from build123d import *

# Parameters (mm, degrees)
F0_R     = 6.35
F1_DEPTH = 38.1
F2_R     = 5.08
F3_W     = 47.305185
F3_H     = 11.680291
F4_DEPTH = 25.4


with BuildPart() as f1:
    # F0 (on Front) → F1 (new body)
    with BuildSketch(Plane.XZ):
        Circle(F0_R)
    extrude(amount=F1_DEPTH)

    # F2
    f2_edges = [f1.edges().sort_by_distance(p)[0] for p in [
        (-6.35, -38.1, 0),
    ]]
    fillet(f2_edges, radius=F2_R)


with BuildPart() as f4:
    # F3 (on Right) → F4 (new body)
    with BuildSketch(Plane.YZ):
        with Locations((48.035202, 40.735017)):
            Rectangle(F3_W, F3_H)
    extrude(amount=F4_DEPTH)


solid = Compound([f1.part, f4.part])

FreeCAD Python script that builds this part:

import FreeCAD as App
import Part
import Sketcher
from FreeCAD import Vector
Q = App.Units.Quantity


def edges_at(feature, points):
    """Names of the edges that pass closest to the given points."""
    edges = feature.Shape.Edges
    near = lambda p: min(range(len(edges)), key=lambda i: edges[i].distToShape(Part.Vertex(*p))[0])
    return sorted({f"Edge{near(p) + 1}" for p in points})

doc = App.newDocument("Part")
body = doc.addObject("PartDesign::Body", "Body")

sketch1 = body.newObject("Sketcher::SketchObject", "Sketch")
sketch1.AttachmentSupport = (doc.getObject("XZ_Plane"), [""])
sketch1.MapMode = "FlatFace"
sketch1.addGeometry(Part.Circle(Vector(0, 0, 0), Vector(0, 0, 1), 6), False)
sketch1.addConstraint([
    Sketcher.Constraint("Coincident", 0, 3, -1, 1),
    Sketcher.Constraint("Diameter", 0, Q("0.5 in")),
])
pad1 = body.newObject("PartDesign::Pad", "Pad")
pad1.Profile = sketch1
pad1.Length = Q("1.5 in")
doc.recompute()

fillet = body.newObject("PartDesign::Fillet", "Fillet")
fillet.Base = (pad1, edges_at(pad1, [(-6.35, -38.1, 0)]))
fillet.Radius = Q("0.2 in")
body2 = doc.addObject("PartDesign::Body", "Body001")

sketch2 = body2.newObject("Sketcher::SketchObject", "Sketch001")
sketch2.AttachmentSupport = (doc.getObject("YZ_Plane001"), [""])
sketch2.MapMode = "FlatFace"
sketch2.addGeometry([
    Part.LineSegment(Vector(24, 47, 0), Vector(24, 35, 0)),
    Part.LineSegment(Vector(24, 35, 0), Vector(72, 35, 0)),
    Part.LineSegment(Vector(72, 35, 0), Vector(72, 47, 0)),
    Part.LineSegment(Vector(72, 47, 0), Vector(24, 47, 0)),
], False)
sketch2.addConstraint([
    Sketcher.Constraint("Coincident", 0, 2, 1, 1),
    Sketcher.Constraint("Coincident", 1, 2, 2, 1),
    Sketcher.Constraint("Coincident", 2, 2, 3, 1),
    Sketcher.Constraint("Coincident", 3, 2, 0, 1),
    Sketcher.Constraint("Vertical", 0),
    Sketcher.Constraint("Horizontal", 1),
    Sketcher.Constraint("Vertical", 2),
    Sketcher.Constraint("Horizontal", 3),
    Sketcher.Constraint("DistanceY", 0, 2, 0, 1, Q("11.680291 mm")),
    Sketcher.Constraint("DistanceX", 1, 1, 1, 2, Q("47.305185 mm")),
    Sketcher.Constraint("DistanceX", -1, 1, 0, 2, Q("24.38261 mm")),
    Sketcher.Constraint("DistanceY", -1, 1, 0, 2, Q("34.894872 mm")),
])
pad2 = body2.newObject("PartDesign::Pad", "Pad001")
pad2.Profile = sketch2
pad2.Length = Q("1 in")

doc.recompute()
